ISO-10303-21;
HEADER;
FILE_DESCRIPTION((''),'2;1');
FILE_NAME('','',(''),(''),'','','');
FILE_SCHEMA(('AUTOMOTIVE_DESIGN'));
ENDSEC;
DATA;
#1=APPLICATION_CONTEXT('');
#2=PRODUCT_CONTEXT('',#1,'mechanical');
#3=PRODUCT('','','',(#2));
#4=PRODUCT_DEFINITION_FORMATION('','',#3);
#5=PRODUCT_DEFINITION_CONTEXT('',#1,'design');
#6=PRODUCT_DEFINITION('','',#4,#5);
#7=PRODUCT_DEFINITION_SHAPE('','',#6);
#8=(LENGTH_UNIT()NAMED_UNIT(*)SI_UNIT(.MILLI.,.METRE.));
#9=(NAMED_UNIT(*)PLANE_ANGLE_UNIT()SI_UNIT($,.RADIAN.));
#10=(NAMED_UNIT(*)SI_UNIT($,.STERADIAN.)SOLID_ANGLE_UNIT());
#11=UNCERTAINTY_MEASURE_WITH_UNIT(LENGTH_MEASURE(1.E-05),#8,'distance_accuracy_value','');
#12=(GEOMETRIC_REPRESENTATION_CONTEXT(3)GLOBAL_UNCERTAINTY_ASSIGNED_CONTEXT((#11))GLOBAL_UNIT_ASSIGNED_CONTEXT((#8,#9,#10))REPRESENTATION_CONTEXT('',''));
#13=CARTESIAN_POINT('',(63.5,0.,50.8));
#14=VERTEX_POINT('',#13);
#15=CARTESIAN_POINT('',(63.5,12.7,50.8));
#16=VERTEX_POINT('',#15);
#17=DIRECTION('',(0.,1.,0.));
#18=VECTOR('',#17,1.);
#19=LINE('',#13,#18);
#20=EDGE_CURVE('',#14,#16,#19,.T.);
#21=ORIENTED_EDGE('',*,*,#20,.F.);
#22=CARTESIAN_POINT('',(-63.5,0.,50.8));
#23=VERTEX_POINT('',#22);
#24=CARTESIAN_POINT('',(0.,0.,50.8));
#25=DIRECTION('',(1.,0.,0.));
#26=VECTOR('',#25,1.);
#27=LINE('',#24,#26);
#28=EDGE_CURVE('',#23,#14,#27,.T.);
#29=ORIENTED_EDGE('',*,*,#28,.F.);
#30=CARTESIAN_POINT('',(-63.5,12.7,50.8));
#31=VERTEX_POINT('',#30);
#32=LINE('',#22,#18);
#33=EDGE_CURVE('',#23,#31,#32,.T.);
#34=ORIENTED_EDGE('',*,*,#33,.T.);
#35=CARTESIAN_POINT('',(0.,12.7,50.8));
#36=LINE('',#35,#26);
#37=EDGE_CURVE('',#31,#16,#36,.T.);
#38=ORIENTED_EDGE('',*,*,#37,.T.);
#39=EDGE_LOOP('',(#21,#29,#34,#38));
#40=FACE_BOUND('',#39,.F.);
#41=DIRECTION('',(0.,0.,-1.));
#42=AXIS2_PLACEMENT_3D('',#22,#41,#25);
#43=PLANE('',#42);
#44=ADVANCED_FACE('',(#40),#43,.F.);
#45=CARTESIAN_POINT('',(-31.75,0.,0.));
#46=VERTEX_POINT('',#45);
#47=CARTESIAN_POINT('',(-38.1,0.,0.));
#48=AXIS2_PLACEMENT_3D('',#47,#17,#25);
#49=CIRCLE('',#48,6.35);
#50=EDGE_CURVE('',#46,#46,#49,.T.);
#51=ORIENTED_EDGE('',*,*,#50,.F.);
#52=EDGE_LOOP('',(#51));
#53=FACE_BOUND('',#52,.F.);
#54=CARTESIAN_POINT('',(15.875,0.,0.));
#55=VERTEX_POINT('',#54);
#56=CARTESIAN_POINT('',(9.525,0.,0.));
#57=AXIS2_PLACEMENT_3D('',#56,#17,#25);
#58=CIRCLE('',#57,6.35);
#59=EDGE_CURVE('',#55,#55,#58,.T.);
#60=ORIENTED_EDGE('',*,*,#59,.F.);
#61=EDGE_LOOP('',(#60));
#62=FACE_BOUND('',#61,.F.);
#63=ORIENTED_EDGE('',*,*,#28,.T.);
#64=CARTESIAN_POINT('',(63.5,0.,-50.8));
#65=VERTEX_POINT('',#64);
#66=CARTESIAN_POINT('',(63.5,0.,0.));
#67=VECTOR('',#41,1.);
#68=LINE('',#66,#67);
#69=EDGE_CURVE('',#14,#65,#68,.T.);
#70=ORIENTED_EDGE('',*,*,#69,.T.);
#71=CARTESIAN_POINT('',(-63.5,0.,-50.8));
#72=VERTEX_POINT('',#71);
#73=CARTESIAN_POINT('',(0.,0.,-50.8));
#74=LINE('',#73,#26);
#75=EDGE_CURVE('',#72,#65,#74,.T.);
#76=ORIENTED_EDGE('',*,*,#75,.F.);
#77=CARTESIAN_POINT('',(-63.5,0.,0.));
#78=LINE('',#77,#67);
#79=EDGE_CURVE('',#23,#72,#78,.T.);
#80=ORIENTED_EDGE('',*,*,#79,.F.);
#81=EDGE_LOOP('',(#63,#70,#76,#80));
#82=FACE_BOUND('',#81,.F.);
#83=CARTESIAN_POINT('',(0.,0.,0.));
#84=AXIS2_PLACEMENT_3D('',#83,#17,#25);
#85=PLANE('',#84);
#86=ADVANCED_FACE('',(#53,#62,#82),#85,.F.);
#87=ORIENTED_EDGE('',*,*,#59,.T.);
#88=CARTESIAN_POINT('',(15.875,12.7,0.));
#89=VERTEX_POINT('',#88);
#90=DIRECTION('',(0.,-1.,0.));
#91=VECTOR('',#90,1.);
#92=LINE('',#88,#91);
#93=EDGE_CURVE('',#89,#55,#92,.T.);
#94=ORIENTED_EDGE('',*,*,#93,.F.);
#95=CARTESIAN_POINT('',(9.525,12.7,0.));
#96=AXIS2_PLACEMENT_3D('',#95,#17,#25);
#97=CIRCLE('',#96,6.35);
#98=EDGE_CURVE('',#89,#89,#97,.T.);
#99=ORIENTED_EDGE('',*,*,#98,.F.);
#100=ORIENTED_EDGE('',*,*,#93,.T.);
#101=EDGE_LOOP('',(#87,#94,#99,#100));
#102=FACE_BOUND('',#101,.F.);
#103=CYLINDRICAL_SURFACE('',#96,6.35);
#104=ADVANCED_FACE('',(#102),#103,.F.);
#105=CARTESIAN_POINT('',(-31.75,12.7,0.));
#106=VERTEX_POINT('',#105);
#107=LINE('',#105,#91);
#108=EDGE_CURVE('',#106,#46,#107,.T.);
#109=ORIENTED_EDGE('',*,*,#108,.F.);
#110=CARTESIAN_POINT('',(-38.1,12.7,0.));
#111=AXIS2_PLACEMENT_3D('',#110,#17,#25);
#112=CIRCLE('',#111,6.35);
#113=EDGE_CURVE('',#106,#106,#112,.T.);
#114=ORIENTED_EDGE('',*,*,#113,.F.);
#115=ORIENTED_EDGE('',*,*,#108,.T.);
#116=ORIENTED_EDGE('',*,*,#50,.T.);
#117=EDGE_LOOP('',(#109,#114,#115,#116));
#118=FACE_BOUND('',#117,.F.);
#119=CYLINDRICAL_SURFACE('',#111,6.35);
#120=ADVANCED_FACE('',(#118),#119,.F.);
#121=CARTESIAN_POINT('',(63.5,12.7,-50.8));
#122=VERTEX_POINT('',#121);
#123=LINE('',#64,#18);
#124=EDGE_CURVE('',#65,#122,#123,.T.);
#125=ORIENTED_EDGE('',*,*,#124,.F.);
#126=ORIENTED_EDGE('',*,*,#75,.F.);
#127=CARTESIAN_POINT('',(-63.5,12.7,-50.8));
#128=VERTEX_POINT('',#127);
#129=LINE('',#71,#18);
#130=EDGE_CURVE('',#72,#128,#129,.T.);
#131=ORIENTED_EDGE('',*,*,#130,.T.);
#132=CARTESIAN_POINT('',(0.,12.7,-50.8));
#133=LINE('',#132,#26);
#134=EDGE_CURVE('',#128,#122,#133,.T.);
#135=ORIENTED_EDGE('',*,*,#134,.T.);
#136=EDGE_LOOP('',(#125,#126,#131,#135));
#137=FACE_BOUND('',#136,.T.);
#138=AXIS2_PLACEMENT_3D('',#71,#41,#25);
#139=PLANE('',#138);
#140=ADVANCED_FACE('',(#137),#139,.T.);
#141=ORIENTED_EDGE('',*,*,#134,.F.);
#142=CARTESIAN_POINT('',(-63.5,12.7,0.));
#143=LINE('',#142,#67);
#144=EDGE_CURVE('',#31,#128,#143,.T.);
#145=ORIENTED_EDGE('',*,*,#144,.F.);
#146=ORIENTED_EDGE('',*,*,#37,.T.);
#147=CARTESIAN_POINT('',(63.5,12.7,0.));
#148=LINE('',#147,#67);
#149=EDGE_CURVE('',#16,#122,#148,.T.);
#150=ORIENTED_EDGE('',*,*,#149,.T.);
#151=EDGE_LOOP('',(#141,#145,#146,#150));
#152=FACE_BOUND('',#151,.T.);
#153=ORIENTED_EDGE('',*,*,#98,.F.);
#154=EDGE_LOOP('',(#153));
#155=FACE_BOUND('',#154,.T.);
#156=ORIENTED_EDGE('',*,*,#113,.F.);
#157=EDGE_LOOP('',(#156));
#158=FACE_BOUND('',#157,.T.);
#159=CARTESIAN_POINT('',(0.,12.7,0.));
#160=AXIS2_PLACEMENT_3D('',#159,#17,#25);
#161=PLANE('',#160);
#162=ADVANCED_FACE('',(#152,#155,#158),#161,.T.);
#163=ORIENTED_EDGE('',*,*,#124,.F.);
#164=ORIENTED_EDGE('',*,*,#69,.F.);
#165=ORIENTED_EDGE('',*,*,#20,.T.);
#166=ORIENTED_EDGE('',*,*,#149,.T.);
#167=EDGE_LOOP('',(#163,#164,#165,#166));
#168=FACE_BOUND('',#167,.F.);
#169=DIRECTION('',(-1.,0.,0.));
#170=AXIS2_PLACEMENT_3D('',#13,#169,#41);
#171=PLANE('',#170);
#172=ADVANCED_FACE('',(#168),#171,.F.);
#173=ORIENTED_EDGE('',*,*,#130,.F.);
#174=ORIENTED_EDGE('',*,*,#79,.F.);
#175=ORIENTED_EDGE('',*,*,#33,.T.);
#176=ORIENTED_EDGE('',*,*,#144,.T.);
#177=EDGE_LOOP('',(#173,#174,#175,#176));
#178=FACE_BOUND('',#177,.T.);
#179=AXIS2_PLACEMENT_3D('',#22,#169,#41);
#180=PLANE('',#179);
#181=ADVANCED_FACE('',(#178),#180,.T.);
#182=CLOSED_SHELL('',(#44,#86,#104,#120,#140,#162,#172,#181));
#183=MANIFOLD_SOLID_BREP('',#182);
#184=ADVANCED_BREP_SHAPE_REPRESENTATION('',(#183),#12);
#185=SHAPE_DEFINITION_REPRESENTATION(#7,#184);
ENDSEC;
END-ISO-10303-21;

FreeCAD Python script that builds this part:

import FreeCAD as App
import Part
import Sketcher
from FreeCAD import Vector
Q = App.Units.Quantity


def add_polygon(sketch, points):
    """Adds a closed chain of lines whose ends are joined by coincident constraints."""
    first, n = sketch.GeometryCount, len(points)
    for a, b in zip(points, points[1:] + points[:1]):
        sketch.addGeometry(Part.LineSegment(App.Vector(*a, 0), App.Vector(*b, 0)), False)
    for i in range(n):
        sketch.addConstraint(Sketcher.Constraint("Coincident", first + i, 2, first + (i + 1) % n, 1))

doc = App.newDocument("Part")
body = doc.addObject("PartDesign::Body", "Body")

# Sketch on XZ plane
sketch1 = body.newObject("Sketcher::SketchObject", "Sketch")
sketch1.AttachmentSupport = (doc.getObject("XZ_Plane"), [""])
sketch1.MapMode = "FlatFace"
add_polygon(sketch1, [(-63.5, -50.8), (-63.5, 50.8), (63.5, 50.8), (63.5, -50.8)])  # lines 0-3
sketch1.addConstraint([
    Sketcher.Constraint("Vertical", 0),
    Sketcher.Constraint("Horizontal", 1),
    Sketcher.Constraint("Vertical", 2),
    Sketcher.Constraint("Horizontal", 3),
    Sketcher.Constraint("Symmetric", 0, 2, 2, 2, -1, 1),
    Sketcher.Constraint("DistanceX", 1, 1, 1, 2, Q("5 in")),
    Sketcher.Constraint("DistanceY", 0, 1, 0, 2, Q("4 in")),
])
pad1 = body.newObject("PartDesign::Pad", "Pad")
pad1.Profile = sketch1
pad1.Length = Q("0.5 in")
pad1.Reversed = True

# Sketch on XZ plane
sketch2 = body.newObject("Sketcher::SketchObject", "Sketch001")
sketch2.AttachmentSupport = (doc.getObject("XZ_Plane"), [""])
sketch2.MapMode = "FlatFace"
sketch2.AttachmentOffset = App.Placement(Vector(0, 0, -0.5 * 25.4), App.Rotation())
sketch2.addGeometry([
    Part.Circle(Vector(-38.1, 0, 0), Vector(0, 0, 1), 6.35),
    Part.Circle(Vector(9.525, 0, 0), Vector(0, 0, 1), 6.35),
], False)
sketch2.addConstraint([
    Sketcher.Constraint("Equal", 0, 1),
    Sketcher.Constraint("PointOnObject", 0, 3, -1),
    Sketcher.Constraint("PointOnObject", 1, 3, -1),
    Sketcher.Constraint("Diameter", 0, Q("0.5 in")),
    Sketcher.Constraint("DistanceX", 0, 3, -1, 1, Q("1.5 in")),
    Sketcher.Constraint("DistanceX", -1, 1, 1, 3, Q("0.375 in")),
])
pocket1 = body.newObject("PartDesign::Pocket", "Pocket")
pocket1.Profile = sketch2
pocket1.Type = "ThroughAll"
pocket1.Reversed = True

doc.recompute()
